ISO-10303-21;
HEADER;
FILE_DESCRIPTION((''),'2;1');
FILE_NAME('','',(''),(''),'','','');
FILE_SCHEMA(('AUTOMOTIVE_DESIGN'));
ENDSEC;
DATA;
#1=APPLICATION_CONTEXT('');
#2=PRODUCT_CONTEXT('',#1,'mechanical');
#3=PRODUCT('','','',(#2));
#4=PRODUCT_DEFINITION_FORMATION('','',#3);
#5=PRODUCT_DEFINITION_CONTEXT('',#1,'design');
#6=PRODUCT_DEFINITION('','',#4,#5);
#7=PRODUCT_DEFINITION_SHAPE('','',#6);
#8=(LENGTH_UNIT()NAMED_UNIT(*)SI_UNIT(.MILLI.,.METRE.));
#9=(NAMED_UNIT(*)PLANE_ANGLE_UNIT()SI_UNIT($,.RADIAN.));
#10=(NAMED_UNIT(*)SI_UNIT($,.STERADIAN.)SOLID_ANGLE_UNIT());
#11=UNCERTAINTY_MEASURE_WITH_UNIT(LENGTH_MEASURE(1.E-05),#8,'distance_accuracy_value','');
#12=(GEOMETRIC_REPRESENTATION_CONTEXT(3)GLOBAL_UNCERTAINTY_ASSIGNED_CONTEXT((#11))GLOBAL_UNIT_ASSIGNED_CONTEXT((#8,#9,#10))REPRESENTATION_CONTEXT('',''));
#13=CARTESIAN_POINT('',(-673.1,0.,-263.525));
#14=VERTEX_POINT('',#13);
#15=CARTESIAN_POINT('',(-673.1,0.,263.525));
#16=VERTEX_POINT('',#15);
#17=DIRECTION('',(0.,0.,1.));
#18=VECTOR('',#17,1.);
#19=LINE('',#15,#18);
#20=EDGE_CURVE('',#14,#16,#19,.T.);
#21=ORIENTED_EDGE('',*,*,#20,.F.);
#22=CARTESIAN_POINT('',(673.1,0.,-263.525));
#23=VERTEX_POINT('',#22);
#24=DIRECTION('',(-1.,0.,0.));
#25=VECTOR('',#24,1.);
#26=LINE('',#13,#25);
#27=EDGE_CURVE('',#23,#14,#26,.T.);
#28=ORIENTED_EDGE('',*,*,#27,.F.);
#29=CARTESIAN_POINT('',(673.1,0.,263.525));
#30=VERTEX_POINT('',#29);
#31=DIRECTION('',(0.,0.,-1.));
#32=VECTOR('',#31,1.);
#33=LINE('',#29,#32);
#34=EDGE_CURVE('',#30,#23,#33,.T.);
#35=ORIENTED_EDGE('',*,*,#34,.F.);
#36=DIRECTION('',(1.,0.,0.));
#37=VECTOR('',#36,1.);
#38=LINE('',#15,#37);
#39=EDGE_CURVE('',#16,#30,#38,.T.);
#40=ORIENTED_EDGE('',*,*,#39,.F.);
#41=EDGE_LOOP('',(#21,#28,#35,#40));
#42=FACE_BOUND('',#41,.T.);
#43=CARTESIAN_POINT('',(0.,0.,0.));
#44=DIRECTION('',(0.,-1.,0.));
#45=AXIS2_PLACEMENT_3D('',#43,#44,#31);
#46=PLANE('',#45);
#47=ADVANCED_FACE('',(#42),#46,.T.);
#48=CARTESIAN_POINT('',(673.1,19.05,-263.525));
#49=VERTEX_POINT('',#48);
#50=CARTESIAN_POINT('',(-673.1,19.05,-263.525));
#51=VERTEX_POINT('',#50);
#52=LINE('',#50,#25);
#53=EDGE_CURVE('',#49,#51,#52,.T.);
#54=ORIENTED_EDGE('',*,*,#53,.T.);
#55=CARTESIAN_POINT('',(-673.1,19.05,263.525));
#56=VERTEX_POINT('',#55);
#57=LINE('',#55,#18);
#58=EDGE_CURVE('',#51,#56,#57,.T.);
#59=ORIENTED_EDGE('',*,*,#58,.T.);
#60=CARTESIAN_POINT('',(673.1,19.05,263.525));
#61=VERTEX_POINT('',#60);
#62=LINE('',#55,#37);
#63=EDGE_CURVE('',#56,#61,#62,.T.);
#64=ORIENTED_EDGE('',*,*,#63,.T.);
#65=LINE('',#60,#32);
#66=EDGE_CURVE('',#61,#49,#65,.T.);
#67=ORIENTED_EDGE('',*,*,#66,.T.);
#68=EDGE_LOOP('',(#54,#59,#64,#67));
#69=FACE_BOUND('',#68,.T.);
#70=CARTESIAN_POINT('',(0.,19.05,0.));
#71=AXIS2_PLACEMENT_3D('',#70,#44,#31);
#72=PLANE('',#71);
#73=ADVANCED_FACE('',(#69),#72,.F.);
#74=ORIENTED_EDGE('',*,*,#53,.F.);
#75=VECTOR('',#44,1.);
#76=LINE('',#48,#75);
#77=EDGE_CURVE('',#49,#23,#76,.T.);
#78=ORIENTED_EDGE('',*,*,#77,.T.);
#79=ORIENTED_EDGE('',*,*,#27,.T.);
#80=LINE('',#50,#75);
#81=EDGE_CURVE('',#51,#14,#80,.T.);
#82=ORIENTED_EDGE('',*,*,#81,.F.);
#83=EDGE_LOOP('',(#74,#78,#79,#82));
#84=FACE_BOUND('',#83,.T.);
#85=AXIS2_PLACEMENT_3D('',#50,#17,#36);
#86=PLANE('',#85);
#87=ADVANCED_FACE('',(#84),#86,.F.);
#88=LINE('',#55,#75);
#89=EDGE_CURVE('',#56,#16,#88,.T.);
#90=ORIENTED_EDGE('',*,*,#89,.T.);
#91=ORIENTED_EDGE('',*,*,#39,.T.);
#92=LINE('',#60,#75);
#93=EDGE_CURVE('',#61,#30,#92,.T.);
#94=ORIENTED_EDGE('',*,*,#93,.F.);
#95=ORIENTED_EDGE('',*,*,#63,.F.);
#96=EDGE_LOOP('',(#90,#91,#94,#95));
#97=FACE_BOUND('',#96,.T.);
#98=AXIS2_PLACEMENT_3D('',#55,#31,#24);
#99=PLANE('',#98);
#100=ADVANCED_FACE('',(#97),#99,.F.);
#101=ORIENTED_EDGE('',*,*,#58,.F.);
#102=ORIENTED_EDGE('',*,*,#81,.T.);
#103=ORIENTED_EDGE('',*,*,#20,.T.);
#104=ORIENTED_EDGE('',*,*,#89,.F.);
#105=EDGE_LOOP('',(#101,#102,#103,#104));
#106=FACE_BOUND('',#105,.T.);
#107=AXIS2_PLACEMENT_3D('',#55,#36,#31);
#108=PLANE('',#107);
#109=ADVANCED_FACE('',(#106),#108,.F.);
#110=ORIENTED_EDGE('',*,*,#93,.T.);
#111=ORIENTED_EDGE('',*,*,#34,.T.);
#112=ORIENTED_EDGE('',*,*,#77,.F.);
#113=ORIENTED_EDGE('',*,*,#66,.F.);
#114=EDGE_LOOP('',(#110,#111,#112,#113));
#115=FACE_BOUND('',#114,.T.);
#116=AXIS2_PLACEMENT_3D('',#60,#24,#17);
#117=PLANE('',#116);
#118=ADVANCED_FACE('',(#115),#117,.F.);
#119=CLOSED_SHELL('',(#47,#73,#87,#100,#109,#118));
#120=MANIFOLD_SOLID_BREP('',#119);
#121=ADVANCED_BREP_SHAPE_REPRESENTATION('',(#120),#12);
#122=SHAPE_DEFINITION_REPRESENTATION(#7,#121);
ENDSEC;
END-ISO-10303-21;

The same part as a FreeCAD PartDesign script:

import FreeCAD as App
import Part
import Sketcher
Q = App.Units.Quantity


def add_polygon(sketch, points):
    """Adds a closed chain of lines whose ends are joined by coincident constraints."""
    first, n = sketch.GeometryCount, len(points)
    for a, b in zip(points, points[1:] + points[:1]):
        sketch.addGeometry(Part.LineSegment(App.Vector(*a, 0), App.Vector(*b, 0)), False)
    for i in range(n):
        sketch.addConstraint(Sketcher.Constraint("Coincident", first + i, 2, first + (i + 1) % n, 1))

doc = App.newDocument("Part")
body = doc.addObject("PartDesign::Body", "Body")

# Sketch on XZ plane
sketch1 = body.newObject("Sketcher::SketchObject", "Sketch")
sketch1.AttachmentSupport = (doc.getObject("XZ_Plane"), [""])
sketch1.MapMode = "FlatFace"
add_polygon(sketch1, [(-673.1, -263.525), (-673.1, 263.525), (673.1, 263.525), (673.1, -263.525)])  # lines 0-3
sketch1.addConstraint([
    Sketcher.Constraint("Vertical", 0),
    Sketcher.Constraint("Horizontal", 1),
    Sketcher.Constraint("Vertical", 2),
    Sketcher.Constraint("Horizontal", 3),
    Sketcher.Constraint("Symmetric", 0, 2, 2, 2, -1, 1),
    Sketcher.Constraint("DistanceX", 1, 1, 1, 2, Q("53 in")),
    Sketcher.Constraint("DistanceY", 0, 1, 0, 2, Q("20.75 in")),
])
pad1 = body.newObject("PartDesign::Pad", "Pad")
pad1.Profile = sketch1
pad1.Length = Q("0.75 in")
pad1.Reversed = True

doc.recompute()
